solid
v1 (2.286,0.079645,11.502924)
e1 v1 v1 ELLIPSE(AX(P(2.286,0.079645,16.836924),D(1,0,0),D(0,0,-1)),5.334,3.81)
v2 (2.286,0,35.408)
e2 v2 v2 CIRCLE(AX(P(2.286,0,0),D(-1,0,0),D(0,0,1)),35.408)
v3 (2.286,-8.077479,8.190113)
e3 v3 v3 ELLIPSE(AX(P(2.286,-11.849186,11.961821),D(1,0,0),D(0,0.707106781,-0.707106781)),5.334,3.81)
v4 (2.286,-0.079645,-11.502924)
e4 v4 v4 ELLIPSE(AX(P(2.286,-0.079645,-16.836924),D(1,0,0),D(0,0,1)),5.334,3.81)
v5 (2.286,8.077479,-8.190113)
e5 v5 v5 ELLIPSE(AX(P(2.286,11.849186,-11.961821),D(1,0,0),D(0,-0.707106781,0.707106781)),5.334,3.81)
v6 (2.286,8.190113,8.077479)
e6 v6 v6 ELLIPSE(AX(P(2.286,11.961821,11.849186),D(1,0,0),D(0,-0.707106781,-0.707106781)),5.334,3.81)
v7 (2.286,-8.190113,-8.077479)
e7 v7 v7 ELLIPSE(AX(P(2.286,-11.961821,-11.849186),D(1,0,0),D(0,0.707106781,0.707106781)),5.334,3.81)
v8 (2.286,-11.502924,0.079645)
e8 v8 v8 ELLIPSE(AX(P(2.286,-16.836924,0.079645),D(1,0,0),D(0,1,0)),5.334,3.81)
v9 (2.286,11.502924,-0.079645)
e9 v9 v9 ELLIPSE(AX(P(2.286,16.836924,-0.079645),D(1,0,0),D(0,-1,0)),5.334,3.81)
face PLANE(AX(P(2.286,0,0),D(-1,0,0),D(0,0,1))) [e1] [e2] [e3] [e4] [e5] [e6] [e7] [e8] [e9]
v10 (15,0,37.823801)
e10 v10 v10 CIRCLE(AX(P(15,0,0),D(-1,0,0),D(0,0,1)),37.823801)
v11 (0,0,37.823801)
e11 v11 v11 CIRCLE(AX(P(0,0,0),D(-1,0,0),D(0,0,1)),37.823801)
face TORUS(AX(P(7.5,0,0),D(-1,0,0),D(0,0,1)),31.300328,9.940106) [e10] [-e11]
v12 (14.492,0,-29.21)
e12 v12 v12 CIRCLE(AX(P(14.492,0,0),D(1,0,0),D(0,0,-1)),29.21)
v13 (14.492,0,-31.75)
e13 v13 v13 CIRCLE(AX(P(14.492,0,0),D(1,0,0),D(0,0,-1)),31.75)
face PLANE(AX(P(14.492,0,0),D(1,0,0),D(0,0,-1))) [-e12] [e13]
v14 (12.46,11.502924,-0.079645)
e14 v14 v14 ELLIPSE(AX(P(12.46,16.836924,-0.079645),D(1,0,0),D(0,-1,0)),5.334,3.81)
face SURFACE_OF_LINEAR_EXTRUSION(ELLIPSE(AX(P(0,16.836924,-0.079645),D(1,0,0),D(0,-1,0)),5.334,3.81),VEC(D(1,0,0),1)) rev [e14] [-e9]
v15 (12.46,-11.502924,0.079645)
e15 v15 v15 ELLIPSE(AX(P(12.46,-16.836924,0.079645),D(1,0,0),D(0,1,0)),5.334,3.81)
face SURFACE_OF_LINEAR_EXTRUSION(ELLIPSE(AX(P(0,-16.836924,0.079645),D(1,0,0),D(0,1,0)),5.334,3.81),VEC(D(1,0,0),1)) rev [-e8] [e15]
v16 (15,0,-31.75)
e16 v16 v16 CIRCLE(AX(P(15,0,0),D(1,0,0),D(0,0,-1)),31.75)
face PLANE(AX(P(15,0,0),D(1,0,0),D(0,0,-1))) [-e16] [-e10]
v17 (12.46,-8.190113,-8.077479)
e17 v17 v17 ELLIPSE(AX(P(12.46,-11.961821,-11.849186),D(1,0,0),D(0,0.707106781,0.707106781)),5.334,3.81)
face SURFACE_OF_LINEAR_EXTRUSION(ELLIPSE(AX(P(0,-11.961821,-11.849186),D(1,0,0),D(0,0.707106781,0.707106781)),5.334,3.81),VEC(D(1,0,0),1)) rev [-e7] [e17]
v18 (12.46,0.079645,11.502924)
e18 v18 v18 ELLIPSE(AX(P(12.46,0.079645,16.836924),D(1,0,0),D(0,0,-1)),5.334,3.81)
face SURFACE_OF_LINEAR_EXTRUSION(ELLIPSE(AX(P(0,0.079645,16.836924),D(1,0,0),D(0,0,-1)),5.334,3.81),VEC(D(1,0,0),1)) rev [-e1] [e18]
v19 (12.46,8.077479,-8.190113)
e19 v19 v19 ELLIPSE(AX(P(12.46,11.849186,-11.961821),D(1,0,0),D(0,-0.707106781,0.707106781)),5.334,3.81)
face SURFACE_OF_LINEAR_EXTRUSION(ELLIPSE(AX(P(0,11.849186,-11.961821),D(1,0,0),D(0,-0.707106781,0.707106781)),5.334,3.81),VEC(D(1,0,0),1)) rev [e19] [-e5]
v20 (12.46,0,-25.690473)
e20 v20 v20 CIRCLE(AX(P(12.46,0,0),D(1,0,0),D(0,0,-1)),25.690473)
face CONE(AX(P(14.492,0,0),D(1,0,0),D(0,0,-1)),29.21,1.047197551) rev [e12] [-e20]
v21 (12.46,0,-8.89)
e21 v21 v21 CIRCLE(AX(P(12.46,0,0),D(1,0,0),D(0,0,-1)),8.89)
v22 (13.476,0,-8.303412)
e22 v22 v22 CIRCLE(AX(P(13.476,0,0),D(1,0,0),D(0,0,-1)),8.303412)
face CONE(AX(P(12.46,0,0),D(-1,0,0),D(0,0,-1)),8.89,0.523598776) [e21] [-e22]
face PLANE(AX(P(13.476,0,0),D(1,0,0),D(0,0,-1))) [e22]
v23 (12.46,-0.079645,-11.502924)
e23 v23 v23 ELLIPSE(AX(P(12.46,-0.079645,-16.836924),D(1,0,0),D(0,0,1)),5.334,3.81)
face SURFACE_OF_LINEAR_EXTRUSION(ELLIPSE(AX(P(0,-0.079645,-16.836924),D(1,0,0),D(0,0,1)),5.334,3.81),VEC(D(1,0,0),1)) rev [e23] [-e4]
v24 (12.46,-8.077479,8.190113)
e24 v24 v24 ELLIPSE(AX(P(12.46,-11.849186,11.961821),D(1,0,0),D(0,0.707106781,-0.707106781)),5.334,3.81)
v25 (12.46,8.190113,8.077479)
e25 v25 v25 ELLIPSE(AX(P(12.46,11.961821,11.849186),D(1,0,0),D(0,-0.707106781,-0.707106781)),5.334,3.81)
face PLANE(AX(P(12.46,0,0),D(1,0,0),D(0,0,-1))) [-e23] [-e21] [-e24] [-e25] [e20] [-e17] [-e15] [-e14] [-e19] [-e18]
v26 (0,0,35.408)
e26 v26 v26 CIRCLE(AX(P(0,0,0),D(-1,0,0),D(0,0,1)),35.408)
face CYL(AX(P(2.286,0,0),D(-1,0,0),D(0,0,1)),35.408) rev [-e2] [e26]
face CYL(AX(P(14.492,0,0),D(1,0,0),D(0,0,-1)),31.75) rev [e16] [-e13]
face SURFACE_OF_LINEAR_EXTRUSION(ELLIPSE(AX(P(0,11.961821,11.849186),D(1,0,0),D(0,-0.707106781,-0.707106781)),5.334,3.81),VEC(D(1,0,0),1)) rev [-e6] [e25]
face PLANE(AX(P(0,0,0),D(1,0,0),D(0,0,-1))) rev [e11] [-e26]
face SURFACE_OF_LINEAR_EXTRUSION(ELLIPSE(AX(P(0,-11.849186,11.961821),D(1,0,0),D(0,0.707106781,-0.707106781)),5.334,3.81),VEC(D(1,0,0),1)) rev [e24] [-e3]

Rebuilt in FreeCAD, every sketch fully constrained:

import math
import FreeCAD as App
import Part
import Sketcher
Q = App.Units.Quantity

doc = App.newDocument("Part")
body = doc.addObject("PartDesign::Body", "Body")

# Sketch on YZ plane
sketch1 = body.newObject("Sketcher::SketchObject", "Sketch")
sketch1.AttachmentSupport = (doc.getObject("YZ_Plane"), [""])
sketch1.MapMode = "FlatFace"
sketch1.addGeometry(Part.Circle(App.Vector(0, 0, 0), App.Vector(0, 0, 1), 41), False)
sketch1.addConstraint([
    Sketcher.Constraint("Coincident", 0, 3, -1, 1),
    Sketcher.Constraint("Diameter", 0, 82.5),
])
pad1 = body.newObject("PartDesign::Pad", "Pad")
pad1.Profile = sketch1
pad1.Length = 15

# Sketch on YZ plane
sketch2 = body.newObject("Sketcher::SketchObject", "Sketch001")
sketch2.AttachmentSupport = (doc.getObject("YZ_Plane"), [""])
sketch2.MapMode = "FlatFace"
sketch2.AttachmentOffset = App.Placement(App.Vector(0, 0, 15), App.Rotation())
sketch2.addGeometry(Part.Circle(App.Vector(0, 0, 0), App.Vector(0, 0, 1), 32), False)
sketch2.addConstraint([
    Sketcher.Constraint("Coincident", 0, 3, -1, 1),
    Sketcher.Constraint("Diameter", 0, Q("2.5 in")),
])
pocket1 = body.newObject("PartDesign::Pocket", "Pocket")
pocket1.Profile = sketch2
pocket1.Length = Q("0.02 in")

# Sketch on YZ plane
sketch3 = body.newObject("Sketcher::SketchObject", "Sketch002")
sketch3.AttachmentSupport = (doc.getObject("YZ_Plane"), [""])
sketch3.MapMode = "FlatFace"
sketch3.AttachmentOffset = App.Placement(App.Vector(0, 0, 14.492), App.Rotation())
sketch3.addGeometry(Part.Circle(App.Vector(0, 0, 0), App.Vector(0, 0, 1), 29), False)
sketch3.addConstraint([
    Sketcher.Constraint("Coincident", 0, 3, -1, 1),
    Sketcher.Constraint("Diameter", 0, Q("2.3 in")),
])
pocket2 = body.newObject("PartDesign::Pocket", "Pocket001")
pocket2.Profile = sketch3
pocket2.Length = Q("0.08 in")
pocket2.TaperAngle = -60

# Sketch on YZ plane
sketch4 = body.newObject("Sketcher::SketchObject", "Sketch003")
sketch4.AttachmentSupport = (doc.getObject("YZ_Plane"), [""])
sketch4.MapMode = "FlatFace"
sketch4.AttachmentOffset = App.Placement(App.Vector(0, 0, 12.46), App.Rotation())
sketch4.addGeometry(Part.Circle(App.Vector(0, 0, 0), App.Vector(0, 0, 1), 9), False)
sketch4.addConstraint([
    Sketcher.Constraint("Coincident", 0, 3, -1, 1),
    Sketcher.Constraint("Diameter", 0, Q("0.7 in")),
])
pad2 = body.newObject("PartDesign::Pad", "Pad001")
pad2.Profile = sketch4
pad2.Length = Q("0.04 in")
pad2.TaperAngle = -30

# Sketch on YZ plane
sketch5 = body.newObject("Sketcher::SketchObject", "Sketch004")
sketch5.AttachmentSupport = (doc.getObject("YZ_Plane"), [""])
sketch5.MapMode = "FlatFace"
sketch5.AttachmentOffset = App.Placement(App.Vector(0, 0, 12.46), App.Rotation())
sketch5.addGeometry(Part.Ellipse(App.Vector(11.502924, -0.079645, 0), App.Vector(16.836924, -3.889645, 0), App.Vector(16.836924, -0.079645, 0)), False)
sketch5.addConstraint(Sketcher.Constraint("Block", 0))
pocket3 = body.newObject("PartDesign::Pocket", "Pocket002")
pocket3.Profile = sketch5
pocket3.Type = "ThroughAll"
doc.recompute()

polarpattern = body.newObject("PartDesign::PolarPattern", "PolarPattern")
polarpattern.Originals = [pocket3]
polarpattern.Axis = (doc.getObject("X_Axis"), [""])
polarpattern.Angle = 360
polarpattern.Occurrences = 8
body.Tip = polarpattern

# Sketch on YZ plane
sketch6 = body.newObject("Sketcher::SketchObject", "Sketch005")
sketch6.AttachmentSupport = (doc.getObject("YZ_Plane"), [""])
sketch6.MapMode = "FlatFace"
sketch6.addGeometry(Part.Circle(App.Vector(0, 0, 0), App.Vector(0, 0, 1), 35), False)
sketch6.addConstraint([
    Sketcher.Constraint("Coincident", 0, 3, -1, 1),
    Sketcher.Constraint("Diameter", 0, 70.816),
])
pocket4 = body.newObject("PartDesign::Pocket", "Pocket003")
pocket4.Profile = sketch6
pocket4.Length = Q("0.09 in")
pocket4.Reversed = True

# Sketch on XY plane
sketch7 = body.newObject("Sketcher::SketchObject", "Sketch006")
sketch7.AttachmentSupport = (doc.getObject("XY_Plane"), [""])
sketch7.MapMode = "FlatFace"
sketch7.addGeometry([
    Part.LineSegment(App.Vector(0, 41.2, 0), App.Vector(0, 37.8, 0)),
    Part.ArcOfCircle(Part.Circle(App.Vector(7.5, 31.3, 0), App.Vector(0, 0, 1), 9.9), math.radians(41), math.radians(139)),
    Part.LineSegment(App.Vector(15, 37.8, 0), App.Vector(15, 41.2, 0)),
    Part.LineSegment(App.Vector(15, 41.2, 0), App.Vector(0, 41.2, 0)),
], False)
sketch7.addConstraint([
    Sketcher.Constraint("Coincident", 0, 2, 1, 2),
    Sketcher.Constraint("Coincident", 1, 1, 2, 1),
    Sketcher.Constraint("Coincident", 2, 2, 3, 1),
    Sketcher.Constraint("Coincident", 3, 2, 0, 1),
    Sketcher.Constraint("Vertical", 0),
    Sketcher.Constraint("Vertical", 2),
    Sketcher.Constraint("Horizontal", 3),
    Sketcher.Constraint("PointOnObject", 0, 2, -2),
    Sketcher.Constraint("Horizontal", 0, 2, 1, 1),
    Sketcher.Constraint("DistanceX", 3, 2, 3, 1, 15.0),
    Sketcher.Constraint("DistanceY", 0, 2, 0, 1, 3.426199),
    Sketcher.Constraint("Radius", 1, 9.940106),
    Sketcher.Constraint("DistanceY", -1, 1, 0, 2, 37.823801),
])
groove = body.newObject("PartDesign::Groove", "Groove")
groove.Profile = sketch7
groove.ReferenceAxis = (sketch7, ["H_Axis"])
groove.Angle = 360

doc.recompute()
